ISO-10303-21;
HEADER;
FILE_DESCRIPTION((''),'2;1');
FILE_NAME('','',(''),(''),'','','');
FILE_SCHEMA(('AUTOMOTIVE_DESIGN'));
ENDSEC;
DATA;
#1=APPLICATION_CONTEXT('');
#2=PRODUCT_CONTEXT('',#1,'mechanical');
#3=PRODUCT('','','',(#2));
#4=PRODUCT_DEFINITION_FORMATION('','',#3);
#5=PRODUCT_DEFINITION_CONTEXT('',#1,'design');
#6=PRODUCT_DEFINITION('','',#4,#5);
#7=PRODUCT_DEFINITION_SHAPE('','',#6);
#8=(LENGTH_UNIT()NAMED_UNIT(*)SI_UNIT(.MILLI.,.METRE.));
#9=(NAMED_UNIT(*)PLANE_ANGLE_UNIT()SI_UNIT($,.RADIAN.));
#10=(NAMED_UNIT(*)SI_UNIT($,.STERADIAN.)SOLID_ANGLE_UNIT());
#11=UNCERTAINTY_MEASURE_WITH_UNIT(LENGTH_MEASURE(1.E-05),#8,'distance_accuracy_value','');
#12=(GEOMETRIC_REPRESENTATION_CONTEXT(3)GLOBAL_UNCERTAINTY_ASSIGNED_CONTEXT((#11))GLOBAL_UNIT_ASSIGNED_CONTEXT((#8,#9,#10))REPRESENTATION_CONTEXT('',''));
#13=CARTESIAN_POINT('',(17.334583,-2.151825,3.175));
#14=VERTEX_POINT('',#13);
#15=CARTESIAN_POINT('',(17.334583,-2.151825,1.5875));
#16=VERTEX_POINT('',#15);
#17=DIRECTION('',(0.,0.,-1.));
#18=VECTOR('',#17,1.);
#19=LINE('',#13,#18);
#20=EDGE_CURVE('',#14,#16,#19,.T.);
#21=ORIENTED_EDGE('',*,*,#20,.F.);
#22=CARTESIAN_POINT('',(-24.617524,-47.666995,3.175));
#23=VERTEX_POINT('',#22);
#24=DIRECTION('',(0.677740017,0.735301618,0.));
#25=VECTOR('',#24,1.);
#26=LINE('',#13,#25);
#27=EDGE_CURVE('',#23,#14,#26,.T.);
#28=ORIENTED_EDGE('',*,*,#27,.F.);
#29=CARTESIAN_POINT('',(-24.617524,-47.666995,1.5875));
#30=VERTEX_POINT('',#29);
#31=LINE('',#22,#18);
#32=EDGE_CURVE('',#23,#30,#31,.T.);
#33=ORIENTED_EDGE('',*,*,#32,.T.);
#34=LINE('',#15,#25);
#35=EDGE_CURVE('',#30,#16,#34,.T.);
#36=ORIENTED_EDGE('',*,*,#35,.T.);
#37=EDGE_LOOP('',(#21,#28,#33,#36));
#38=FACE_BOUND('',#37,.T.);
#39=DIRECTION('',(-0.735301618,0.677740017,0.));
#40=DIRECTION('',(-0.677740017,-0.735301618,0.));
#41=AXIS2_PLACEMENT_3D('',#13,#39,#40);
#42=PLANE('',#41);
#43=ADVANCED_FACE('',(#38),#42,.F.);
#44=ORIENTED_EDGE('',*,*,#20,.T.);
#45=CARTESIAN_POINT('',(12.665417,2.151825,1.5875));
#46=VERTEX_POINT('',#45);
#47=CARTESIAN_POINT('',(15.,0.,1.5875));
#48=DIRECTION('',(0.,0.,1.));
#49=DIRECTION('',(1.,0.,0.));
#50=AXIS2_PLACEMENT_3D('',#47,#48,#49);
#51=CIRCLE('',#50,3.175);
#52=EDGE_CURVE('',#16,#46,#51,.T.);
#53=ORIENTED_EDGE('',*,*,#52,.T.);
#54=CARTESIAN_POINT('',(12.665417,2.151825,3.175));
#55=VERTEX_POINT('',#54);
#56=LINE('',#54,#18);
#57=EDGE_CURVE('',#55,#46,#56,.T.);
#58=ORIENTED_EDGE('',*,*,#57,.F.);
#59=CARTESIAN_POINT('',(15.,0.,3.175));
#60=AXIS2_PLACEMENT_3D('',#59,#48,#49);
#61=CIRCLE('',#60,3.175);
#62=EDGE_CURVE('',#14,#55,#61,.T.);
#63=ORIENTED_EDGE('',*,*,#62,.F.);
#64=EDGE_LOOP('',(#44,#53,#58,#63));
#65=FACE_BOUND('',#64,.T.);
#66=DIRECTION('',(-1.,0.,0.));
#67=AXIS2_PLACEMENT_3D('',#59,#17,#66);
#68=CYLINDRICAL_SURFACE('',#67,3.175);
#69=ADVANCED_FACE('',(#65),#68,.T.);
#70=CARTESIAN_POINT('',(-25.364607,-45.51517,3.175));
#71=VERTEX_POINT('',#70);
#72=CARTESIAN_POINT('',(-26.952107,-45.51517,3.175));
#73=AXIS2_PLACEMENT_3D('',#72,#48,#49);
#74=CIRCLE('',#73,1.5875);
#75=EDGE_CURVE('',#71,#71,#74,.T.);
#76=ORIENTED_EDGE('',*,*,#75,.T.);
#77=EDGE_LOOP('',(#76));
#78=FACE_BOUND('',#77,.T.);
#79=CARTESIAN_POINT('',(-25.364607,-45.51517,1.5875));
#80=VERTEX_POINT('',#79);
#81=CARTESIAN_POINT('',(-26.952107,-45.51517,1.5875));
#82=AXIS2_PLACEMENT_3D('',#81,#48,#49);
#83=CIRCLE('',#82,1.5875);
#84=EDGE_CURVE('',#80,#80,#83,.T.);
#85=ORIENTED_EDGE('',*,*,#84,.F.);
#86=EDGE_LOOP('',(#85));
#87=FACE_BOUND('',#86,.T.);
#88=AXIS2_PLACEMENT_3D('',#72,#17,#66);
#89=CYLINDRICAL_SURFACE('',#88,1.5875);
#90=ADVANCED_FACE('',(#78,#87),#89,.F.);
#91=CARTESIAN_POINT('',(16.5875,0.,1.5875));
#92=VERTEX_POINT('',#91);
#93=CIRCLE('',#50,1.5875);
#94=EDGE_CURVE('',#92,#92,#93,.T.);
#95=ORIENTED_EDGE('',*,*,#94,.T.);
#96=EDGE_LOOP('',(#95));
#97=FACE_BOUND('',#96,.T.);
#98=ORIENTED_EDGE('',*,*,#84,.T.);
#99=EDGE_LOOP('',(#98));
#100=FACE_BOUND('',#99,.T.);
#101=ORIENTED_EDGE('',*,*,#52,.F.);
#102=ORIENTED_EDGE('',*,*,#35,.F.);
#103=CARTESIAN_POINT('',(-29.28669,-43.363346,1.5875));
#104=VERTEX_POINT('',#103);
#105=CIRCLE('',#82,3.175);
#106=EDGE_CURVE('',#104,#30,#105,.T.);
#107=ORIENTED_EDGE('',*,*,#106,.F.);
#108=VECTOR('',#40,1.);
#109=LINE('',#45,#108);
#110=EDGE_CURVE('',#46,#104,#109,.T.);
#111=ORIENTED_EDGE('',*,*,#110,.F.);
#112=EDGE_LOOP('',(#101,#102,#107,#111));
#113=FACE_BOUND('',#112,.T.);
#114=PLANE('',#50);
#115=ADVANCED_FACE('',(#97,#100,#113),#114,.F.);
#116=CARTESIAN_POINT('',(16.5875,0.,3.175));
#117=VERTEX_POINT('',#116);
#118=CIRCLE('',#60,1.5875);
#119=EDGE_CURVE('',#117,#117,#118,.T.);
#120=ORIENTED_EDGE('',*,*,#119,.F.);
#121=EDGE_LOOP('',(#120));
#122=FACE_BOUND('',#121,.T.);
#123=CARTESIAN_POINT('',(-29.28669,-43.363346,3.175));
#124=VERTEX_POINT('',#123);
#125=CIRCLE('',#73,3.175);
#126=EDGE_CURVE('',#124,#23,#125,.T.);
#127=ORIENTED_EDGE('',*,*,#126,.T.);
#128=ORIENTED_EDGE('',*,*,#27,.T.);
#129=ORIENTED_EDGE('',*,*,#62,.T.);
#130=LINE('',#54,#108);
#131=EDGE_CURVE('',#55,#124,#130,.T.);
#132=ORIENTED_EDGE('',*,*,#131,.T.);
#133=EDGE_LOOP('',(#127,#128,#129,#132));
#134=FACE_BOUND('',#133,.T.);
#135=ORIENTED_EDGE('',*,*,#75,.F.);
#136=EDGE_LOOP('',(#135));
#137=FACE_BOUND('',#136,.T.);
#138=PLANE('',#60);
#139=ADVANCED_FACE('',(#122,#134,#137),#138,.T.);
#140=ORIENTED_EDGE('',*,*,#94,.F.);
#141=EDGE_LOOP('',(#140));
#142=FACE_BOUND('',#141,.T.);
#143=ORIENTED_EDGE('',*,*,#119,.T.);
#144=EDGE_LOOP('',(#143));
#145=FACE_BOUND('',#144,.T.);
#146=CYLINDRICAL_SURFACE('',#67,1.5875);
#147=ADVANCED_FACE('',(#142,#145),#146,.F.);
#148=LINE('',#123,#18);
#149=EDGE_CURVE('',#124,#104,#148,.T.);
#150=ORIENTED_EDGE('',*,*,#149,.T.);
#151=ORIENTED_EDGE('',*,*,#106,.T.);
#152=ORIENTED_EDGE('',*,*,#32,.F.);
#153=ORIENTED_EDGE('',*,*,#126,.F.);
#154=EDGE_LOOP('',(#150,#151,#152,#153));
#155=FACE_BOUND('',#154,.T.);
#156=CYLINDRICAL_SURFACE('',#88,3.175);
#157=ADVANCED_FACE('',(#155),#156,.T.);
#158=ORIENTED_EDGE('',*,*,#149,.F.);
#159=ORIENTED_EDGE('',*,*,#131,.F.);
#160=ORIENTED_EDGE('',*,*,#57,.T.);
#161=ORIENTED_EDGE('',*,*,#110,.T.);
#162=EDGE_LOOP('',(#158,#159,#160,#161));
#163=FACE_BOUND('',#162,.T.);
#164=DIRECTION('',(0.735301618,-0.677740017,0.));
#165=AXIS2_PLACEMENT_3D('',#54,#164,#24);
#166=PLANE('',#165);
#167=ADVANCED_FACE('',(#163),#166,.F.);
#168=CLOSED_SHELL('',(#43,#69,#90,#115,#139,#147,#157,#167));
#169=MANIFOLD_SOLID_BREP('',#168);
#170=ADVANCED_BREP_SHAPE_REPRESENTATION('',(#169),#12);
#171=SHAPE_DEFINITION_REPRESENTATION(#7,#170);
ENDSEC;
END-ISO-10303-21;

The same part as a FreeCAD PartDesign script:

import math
import FreeCAD as App
import Part
import Sketcher

V = App.Vector
Q = App.Units.Quantity

doc = App.newDocument("Part")
body = doc.addObject("PartDesign::Body", "Body")

sketch1 = doc.addObject("Sketcher::SketchObject", "Sketch")
body.addObject(sketch1)
sketch1.AttachmentSupport = (doc.XY_Plane, [""])
sketch1.MapMode = "FlatFace"
sketch1.AttachmentOffset = App.Placement(V(0, 0, 0.0625 * 25.4), App.Rotation())
sketch1.addGeometry(Part.LineSegment(V(-24.6, -47.7, 0), V(17.3, -2.2, 0)), False)
sketch1.addGeometry(Part.ArcOfCircle(Part.Circle(V(15, 0, 0), V(0, 0, 1), 3.2), math.radians(-43), math.radians(137)), False)
sketch1.addGeometry(Part.LineSegment(V(12.7, 2.2, 0), V(-29.3, -43.4, 0)), False)
sketch1.addGeometry(Part.ArcOfCircle(Part.Circle(V(-27, -45.5, 0), V(0, 0, 1), 3.2), math.radians(137), math.radians(317)), False)
sketch1.addGeometry(Part.Circle(V(-27, -45.5, 0), V(0, 0, 1), 1.6), False)
sketch1.addGeometry(Part.Circle(V(15, 0, 0), V(0, 0, 1), 1.6), False)
sketch1.addConstraint(Sketcher.Constraint("Tangent", 0, 2, 1, 1))
sketch1.addConstraint(Sketcher.Constraint("Tangent", 1, 2, 2, 1))
sketch1.addConstraint(Sketcher.Constraint("Tangent", 2, 2, 3, 1))
sketch1.addConstraint(Sketcher.Constraint("Tangent", 3, 2, 0, 1))
sketch1.addConstraint(Sketcher.Constraint("Coincident", 4, 3, 3, 3))
sketch1.addConstraint(Sketcher.Constraint("Coincident", 5, 3, 1, 3))
sketch1.addConstraint(Sketcher.Constraint("Equal", 1, 3))
sketch1.addConstraint(Sketcher.Constraint("Equal", 4, 5))
sketch1.addConstraint(Sketcher.Constraint("PointOnObject", 1, 3, -1))
sketch1.addConstraint(Sketcher.Constraint("Diameter", 4, Q("0.125 in")))
sketch1.addConstraint(Sketcher.Constraint("Radius", 1, Q("0.125 in")))
sketch1.addConstraint(Sketcher.Constraint("Distance", 0, Q("61.9 mm")))
sketch1.addConstraint(Sketcher.Constraint("DistanceX", -1, 1, 1, 3, Q("15 mm")))
sketch1.addConstraint(Sketcher.Constraint("DistanceY", 3, 3, -1, 1, Q("45.51517 mm")))
pad1 = doc.addObject("PartDesign::Pad", "Pad")
body.addObject(pad1)
pad1.Profile = sketch1
pad1.Length = Q("0.0625 in")

doc.recompute()
